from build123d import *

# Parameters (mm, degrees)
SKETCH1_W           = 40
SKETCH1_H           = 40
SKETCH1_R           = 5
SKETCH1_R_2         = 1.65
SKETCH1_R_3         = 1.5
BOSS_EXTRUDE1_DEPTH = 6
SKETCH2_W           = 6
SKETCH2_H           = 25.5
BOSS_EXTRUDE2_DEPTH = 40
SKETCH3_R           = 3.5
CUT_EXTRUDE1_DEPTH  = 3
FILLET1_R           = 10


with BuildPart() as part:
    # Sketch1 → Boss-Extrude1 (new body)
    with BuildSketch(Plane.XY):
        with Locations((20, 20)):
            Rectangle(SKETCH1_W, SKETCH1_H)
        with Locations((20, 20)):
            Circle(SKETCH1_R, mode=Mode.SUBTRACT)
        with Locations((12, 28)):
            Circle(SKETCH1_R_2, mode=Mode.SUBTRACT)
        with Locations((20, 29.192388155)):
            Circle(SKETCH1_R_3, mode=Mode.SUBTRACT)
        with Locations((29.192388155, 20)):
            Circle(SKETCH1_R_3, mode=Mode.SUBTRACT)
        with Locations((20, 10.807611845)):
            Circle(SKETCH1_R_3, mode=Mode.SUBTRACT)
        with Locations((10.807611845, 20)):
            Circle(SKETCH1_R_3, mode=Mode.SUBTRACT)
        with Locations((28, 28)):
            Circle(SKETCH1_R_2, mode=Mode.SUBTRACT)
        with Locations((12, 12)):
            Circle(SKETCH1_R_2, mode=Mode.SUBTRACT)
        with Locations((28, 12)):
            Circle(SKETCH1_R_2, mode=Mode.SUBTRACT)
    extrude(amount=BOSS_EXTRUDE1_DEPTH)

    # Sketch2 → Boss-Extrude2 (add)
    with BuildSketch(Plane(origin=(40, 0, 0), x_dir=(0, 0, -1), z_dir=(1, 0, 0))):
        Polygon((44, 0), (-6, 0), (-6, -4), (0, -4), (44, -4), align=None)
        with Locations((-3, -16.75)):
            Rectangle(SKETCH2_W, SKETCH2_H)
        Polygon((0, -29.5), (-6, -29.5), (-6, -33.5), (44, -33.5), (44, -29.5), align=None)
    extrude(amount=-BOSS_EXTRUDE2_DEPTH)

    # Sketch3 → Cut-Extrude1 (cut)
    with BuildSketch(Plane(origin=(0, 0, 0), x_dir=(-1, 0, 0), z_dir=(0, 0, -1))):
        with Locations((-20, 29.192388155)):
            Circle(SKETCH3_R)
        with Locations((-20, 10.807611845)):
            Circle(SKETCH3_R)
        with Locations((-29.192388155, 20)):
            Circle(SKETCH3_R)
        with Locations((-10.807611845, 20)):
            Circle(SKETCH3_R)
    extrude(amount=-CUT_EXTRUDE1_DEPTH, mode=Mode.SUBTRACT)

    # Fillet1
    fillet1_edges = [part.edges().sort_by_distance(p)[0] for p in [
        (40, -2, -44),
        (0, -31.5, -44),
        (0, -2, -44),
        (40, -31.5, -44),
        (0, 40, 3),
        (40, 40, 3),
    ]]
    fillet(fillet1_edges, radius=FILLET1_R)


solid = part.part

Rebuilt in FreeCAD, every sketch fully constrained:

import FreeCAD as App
import Part
import Sketcher
from FreeCAD import Vector


def edges_at(feature, points):
    """Names of the edges that pass closest to the given points."""
    edges = feature.Shape.Edges
    near = lambda p: min(range(len(edges)), key=lambda i: edges[i].distToShape(Part.Vertex(*p))[0])
    return sorted({f"Edge{near(p) + 1}" for p in points})

doc = App.newDocument("Part")
body = doc.addObject("PartDesign::Body", "Body")

# Sketch on XY plane
sketch1 = doc.addObject("Sketcher::SketchObject", "Sketch")
body.addObject(sketch1)
sketch1.AttachmentSupport = (doc.XY_Plane, [""])
sketch1.MapMode = "FlatFace"
sketch1.addGeometry([
    Part.LineSegment(Vector(0, 40, 0), Vector(0, 0, 0)),  # 0
    Part.LineSegment(Vector(0, 0, 0), Vector(40, 0, 0)),  # 1
    Part.LineSegment(Vector(40, 0, 0), Vector(40, 40, 0)),  # 2
    Part.LineSegment(Vector(40, 40, 0), Vector(0, 40, 0)),  # 3
    Part.Circle(Vector(12, 12, 0), Vector(0, 0, 1), 1.65),  # 4
    Part.Circle(Vector(20, 10.807612, 0), Vector(0, 0, 1), 1.5),  # 5
    Part.Circle(Vector(28, 12, 0), Vector(0, 0, 1), 1.65),  # 6
    Part.Circle(Vector(10.807612, 20, 0), Vector(0, 0, 1), 1.5),  # 7
    Part.Circle(Vector(12, 28, 0), Vector(0, 0, 1), 1.65),  # 8
    Part.Circle(Vector(20, 20, 0), Vector(0, 0, 1), 5),  # 9
    Part.Circle(Vector(29.192388, 20, 0), Vector(0, 0, 1), 1.5),  # 10
    Part.Circle(Vector(20, 29.192388, 0), Vector(0, 0, 1), 1.5),  # 11
    Part.Circle(Vector(28, 28, 0), Vector(0, 0, 1), 1.65),  # 12
], False)
sketch1.addConstraint([
    Sketcher.Constraint("Coincident", 0, 2, 1, 1),
    Sketcher.Constraint("Coincident", 1, 2, 2, 1),
    Sketcher.Constraint("Coincident", 2, 2, 3, 1),
    Sketcher.Constraint("Coincident", 3, 2, 0, 1),
    Sketcher.Constraint("Vertical", 0),
    Sketcher.Constraint("Horizontal", 1),
    Sketcher.Constraint("Vertical", 2),
    Sketcher.Constraint("Horizontal", 3),
    Sketcher.Constraint("Coincident", 0, 2, -1, 1),
    Sketcher.Constraint("Equal", 4, 6),
    Sketcher.Constraint("Equal", 5, 7),
    Sketcher.Constraint("Equal", 6, 8),
    Sketcher.Constraint("Equal", 7, 10),
    Sketcher.Constraint("Equal", 10, 11),
    Sketcher.Constraint("Equal", 8, 12),
    Sketcher.Constraint("Horizontal", 4, 3, 6, 3),
    Sketcher.Constraint("Horizontal", 7, 3, 9, 3),
    Sketcher.Constraint("Horizontal", 9, 3, 10, 3),
    Sketcher.Constraint("Horizontal", 8, 3, 12, 3),
    Sketcher.Constraint("Vertical", 4, 3, 8, 3),
    Sketcher.Constraint("Vertical", 5, 3, 9, 3),
    Sketcher.Constraint("Vertical", 9, 3, 11, 3),
    Sketcher.Constraint("Vertical", 6, 3, 12, 3),
    Sketcher.Constraint("Equal", 3, 0),
    Sketcher.Constraint("Diameter", 5, 3.0),
    Sketcher.Constraint("Diameter", 9, 10.0),
    Sketcher.Constraint("Diameter", 4, 3.3),
    Sketcher.Constraint("DistanceX", 1, 1, 1, 2, 40.0),
    Sketcher.Constraint("DistanceX", -1, 1, 4, 3, 12.0),
    Sketcher.Constraint("DistanceY", -1, 1, 4, 3, 12.0),
    Sketcher.Constraint("DistanceX", -1, 1, 5, 3, 20.0),
    Sketcher.Constraint("DistanceX", -1, 1, 6, 3, 28.0),
    Sketcher.Constraint("DistanceY", -1, 1, 7, 3, 20.0),
    Sketcher.Constraint("DistanceY", -1, 1, 8, 3, 28.0),
    Sketcher.Constraint("DistanceY", -1, 1, 5, 3, 10.807612),
    Sketcher.Constraint("DistanceX", -1, 1, 7, 3, 10.807612),
    Sketcher.Constraint("DistanceX", -1, 1, 10, 3, 29.192388),
    Sketcher.Constraint("DistanceY", -1, 1, 11, 3, 29.192388),
])
pad1 = doc.addObject("PartDesign::Pad", "Pad")
body.addObject(pad1)
pad1.Profile = sketch1
pad1.Length = 6

# Sketch on YZ plane
sketch2 = doc.addObject("Sketcher::SketchObject", "Sketch001")
body.addObject(sketch2)
sketch2.AttachmentSupport = (doc.YZ_Plane, [""])
sketch2.MapMode = "FlatFace"
sketch2.AttachmentOffset = App.Placement(Vector(0, 0, 40), App.Rotation())
sketch2.addGeometry([
    Part.LineSegment(Vector(0, -44, 0), Vector(0, 6, 0)),  # 0
    Part.LineSegment(Vector(0, 6, 0), Vector(-33.5, 6, 0)),  # 1
    Part.LineSegment(Vector(-33.5, 6, 0), Vector(-33.5, -44, 0)),  # 2
    Part.LineSegment(Vector(-33.5, -44, 0), Vector(-29.5, -44, 0)),  # 3
    Part.LineSegment(Vector(-29.5, -44, 0), Vector(-29.5, 0, 0)),  # 4
    Part.LineSegment(Vector(-29.5, 0, 0), Vector(-4, 0, 0)),  # 5
    Part.LineSegment(Vector(-4, 0, 0), Vector(-4, -44, 0)),  # 6
    Part.LineSegment(Vector(-4, -44, 0), Vector(0, -44, 0)),  # 7
], False)
sketch2.addConstraint([
    Sketcher.Constraint("Coincident", 0, 2, 1, 1),
    Sketcher.Constraint("Coincident", 1, 2, 2, 1),
    Sketcher.Constraint("Coincident", 2, 2, 3, 1),
    Sketcher.Constraint("Coincident", 3, 2, 4, 1),
    Sketcher.Constraint("Coincident", 4, 2, 5, 1),
    Sketcher.Constraint("Coincident", 5, 2, 6, 1),
    Sketcher.Constraint("Coincident", 6, 2, 7, 1),
    Sketcher.Constraint("Coincident", 7, 2, 0, 1),
    Sketcher.Constraint("Vertical", 0),
    Sketcher.Constraint("Horizontal", 1),
    Sketcher.Constraint("Vertical", 2),
    Sketcher.Constraint("Horizontal", 3),
    Sketcher.Constraint("Vertical", 4),
    Sketcher.Constraint("Horizontal", 5),
    Sketcher.Constraint("Vertical", 6),
    Sketcher.Constraint("Horizontal", 7),
    Sketcher.Constraint("PointOnObject", 0, 2, -2),
    Sketcher.Constraint("PointOnObject", 4, 2, -1),
    Sketcher.Constraint("Horizontal", 3, 2, 6, 2),
    Sketcher.Constraint("Equal", 3, 7),
    Sketcher.Constraint("DistanceX", 3, 1, 3, 2, 4.0),
    Sketcher.Constraint("DistanceY", 0, 1, 0, 2, 50.0),
    Sketcher.Constraint("DistanceY", 4, 1, 4, 2, 44.0),
    Sketcher.Constraint("DistanceX", 1, 2, 1, 1, 33.5),
])
pad2 = doc.addObject("PartDesign::Pad", "Pad001")
body.addObject(pad2)
pad2.Profile = sketch2
pad2.Length = 40
pad2.Reversed = True

# Sketch on XY plane
sketch3 = doc.addObject("Sketcher::SketchObject", "Sketch002")
body.addObject(sketch3)
sketch3.AttachmentSupport = (doc.XY_Plane, [""])
sketch3.MapMode = "FlatFace"
sketch3.addGeometry([
    Part.Circle(Vector(20, 29.192388, 0), Vector(0, 0, 1), 3.5),
    Part.Circle(Vector(20, 10.807612, 0), Vector(0, 0, 1), 3.5),
    Part.Circle(Vector(29.192388, 20, 0), Vector(0, 0, 1), 3.5),
    Part.Circle(Vector(10.807612, 20, 0), Vector(0, 0, 1), 3.5),
], False)
sketch3.addConstraint([
    Sketcher.Constraint("Equal", 0, 1),
    Sketcher.Constraint("Equal", 1, 2),
    Sketcher.Constraint("Equal", 2, 3),
    Sketcher.Constraint("Horizontal", 2, 3, 3, 3),
    Sketcher.Constraint("Vertical", 0, 3, 1, 3),
    Sketcher.Constraint("Diameter", 0, 7.0),
    Sketcher.Constraint("DistanceX", -1, 1, 0, 3, 20.0),
    Sketcher.Constraint("DistanceY", -1, 1, 2, 3, 20.0),
    Sketcher.Constraint("DistanceY", -1, 1, 0, 3, 29.192388),
    Sketcher.Constraint("DistanceY", -1, 1, 1, 3, 10.807612),
    Sketcher.Constraint("DistanceX", -1, 1, 2, 3, 29.192388),
    Sketcher.Constraint("DistanceX", -1, 1, 3, 3, 10.807612),
])
pocket1 = doc.addObject("PartDesign::Pocket", "Pocket")
body.addObject(pocket1)
pocket1.Profile = sketch3
pocket1.Length = 3
pocket1.Reversed = True
doc.recompute()

fillet = doc.addObject("PartDesign::Fillet", "Fillet")
body.addObject(fillet)
fillet.Base = (pocket1, edges_at(pocket1, [
    (40, -2, -44),
    (0, -31.5, -44),
    (0, -2, -44),
    (40, -31.5, -44),
    (0, 40, 3),
    (40, 40, 3),
]))
fillet.Radius = 10

doc.recompute()
